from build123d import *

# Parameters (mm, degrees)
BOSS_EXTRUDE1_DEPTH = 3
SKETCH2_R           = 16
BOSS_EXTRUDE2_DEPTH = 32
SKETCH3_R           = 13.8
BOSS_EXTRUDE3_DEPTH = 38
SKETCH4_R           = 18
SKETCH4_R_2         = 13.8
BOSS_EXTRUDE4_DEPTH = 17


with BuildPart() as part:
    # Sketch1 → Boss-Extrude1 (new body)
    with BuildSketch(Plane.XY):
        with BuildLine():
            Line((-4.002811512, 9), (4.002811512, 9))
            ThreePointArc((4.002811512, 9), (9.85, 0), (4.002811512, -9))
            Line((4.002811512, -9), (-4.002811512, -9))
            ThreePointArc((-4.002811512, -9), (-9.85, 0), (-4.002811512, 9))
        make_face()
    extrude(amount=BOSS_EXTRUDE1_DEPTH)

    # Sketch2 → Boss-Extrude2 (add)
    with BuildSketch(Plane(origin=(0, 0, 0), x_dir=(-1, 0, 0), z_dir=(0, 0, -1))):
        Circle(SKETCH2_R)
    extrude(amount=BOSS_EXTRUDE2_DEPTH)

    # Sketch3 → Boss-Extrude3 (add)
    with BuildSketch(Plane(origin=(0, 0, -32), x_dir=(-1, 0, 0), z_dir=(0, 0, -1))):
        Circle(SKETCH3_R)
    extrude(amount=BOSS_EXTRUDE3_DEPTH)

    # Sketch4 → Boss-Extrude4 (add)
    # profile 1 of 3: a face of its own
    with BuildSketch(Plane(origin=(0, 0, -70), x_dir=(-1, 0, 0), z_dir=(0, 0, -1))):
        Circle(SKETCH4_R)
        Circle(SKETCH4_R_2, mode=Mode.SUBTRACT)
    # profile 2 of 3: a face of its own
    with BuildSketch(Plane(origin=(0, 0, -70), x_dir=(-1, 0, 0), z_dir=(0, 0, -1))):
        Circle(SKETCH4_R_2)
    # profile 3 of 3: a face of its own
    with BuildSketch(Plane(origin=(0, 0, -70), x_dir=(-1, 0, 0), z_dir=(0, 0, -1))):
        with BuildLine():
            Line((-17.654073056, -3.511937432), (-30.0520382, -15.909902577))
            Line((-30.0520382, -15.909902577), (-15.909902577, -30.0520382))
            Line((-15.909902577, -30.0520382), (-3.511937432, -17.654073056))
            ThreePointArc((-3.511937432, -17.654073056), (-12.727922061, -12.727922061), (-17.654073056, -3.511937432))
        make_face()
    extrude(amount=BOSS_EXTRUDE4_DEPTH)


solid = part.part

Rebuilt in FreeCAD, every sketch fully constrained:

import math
import FreeCAD as App
import Part
import Sketcher

V = App.Vector
Q = App.Units.Quantity

doc = App.newDocument("Part")
params = doc.addObject("Spreadsheet::Sheet", "Params")
for row, (alias, value) in enumerate([
    ("sketch1_radius", "9.85 mm"),
    ("pad1_length", "3 mm"),
    ("sketch2_diameter", "32 mm"),
    ("pad2_length", "32 mm"),
    ("sketch3_diameter", "27.6 mm"),
    ("pad3_length", "38 mm"),
    ("sketch4_radius", "18 mm"),
    ("sketch4_length", "20 mm"),
    ("pad4_length", "17 mm"),
], start=1):
    params.set(f"A{row}", alias)
    params.set(f"B{row}", "=" + value)
    params.setAlias(f"B{row}", alias)

body = doc.addObject("PartDesign::Body", "Body")

sketch1 = body.newObject("Sketcher::SketchObject", "Sketch")
sketch1.AttachmentSupport = (doc.getObject("XY_Plane"), [""])
sketch1.MapMode = "FlatFace"
sketch1.addGeometry([
    Part.LineSegment(V(4, 9, 0), V(-4, 9, 0)),
    Part.ArcOfCircle(Part.Circle(V(0, 0, 0), V(0, 0, 1), 10), math.radians(114), math.radians(246)),
    Part.LineSegment(V(-4, -9, 0), V(4, -9, 0)),
    Part.ArcOfCircle(Part.Circle(V(0, 0, 0), V(0, 0, 1), 10), math.radians(-66), math.radians(66)),
], False)
sketch1.addConstraint([
    Sketcher.Constraint("Coincident", 0, 2, 1, 1),
    Sketcher.Constraint("Coincident", 1, 2, 2, 1),
    Sketcher.Constraint("Coincident", 2, 2, 3, 1),
    Sketcher.Constraint("Coincident", 3, 2, 0, 1),
    Sketcher.Constraint("Horizontal", 0),
    Sketcher.Constraint("Horizontal", 2),
    Sketcher.Constraint("Coincident", 1, 3, -1, 1),
    Sketcher.Constraint("Coincident", 3, 3, -1, 1),
    Sketcher.Constraint("Equal", 1, 3),
    Sketcher.Constraint("Vertical", 0, 2, 1, 2),
    Sketcher.Constraint("Radius", 1, Q("9.85 mm")),
    Sketcher.Constraint("DistanceY", -1, 1, 0, 2, Q("9 mm")),
])
sketch1.setExpression("Constraints[10]", "Params.sketch1_radius")
pad1 = body.newObject("PartDesign::Pad", "Pad")
pad1.Profile = sketch1
pad1.setExpression("Length", "Params.pad1_length")

sketch2 = body.newObject("Sketcher::SketchObject", "Sketch001")
sketch2.AttachmentSupport = (doc.getObject("XY_Plane"), [""])
sketch2.MapMode = "FlatFace"
sketch2.addGeometry(Part.Circle(V(0, 0, 0), V(0, 0, 1), 16), False)
sketch2.addConstraint([
    Sketcher.Constraint("Coincident", 0, 3, -1, 1),
    Sketcher.Constraint("Diameter", 0, Q("32 mm")),
])
sketch2.setExpression("Constraints[1]", "Params.sketch2_diameter")
pad2 = body.newObject("PartDesign::Pad", "Pad001")
pad2.Profile = sketch2
pad2.setExpression("Length", "Params.pad2_length")
pad2.Reversed = True

sketch3 = body.newObject("Sketcher::SketchObject", "Sketch002")
sketch3.AttachmentSupport = (doc.getObject("XY_Plane"), [""])
sketch3.MapMode = "FlatFace"
sketch3.AttachmentOffset = App.Placement(V(0, 0, -32), App.Rotation())
sketch3.addGeometry(Part.Circle(V(0, 0, 0), V(0, 0, 1), 14), False)
sketch3.addConstraint([
    Sketcher.Constraint("Coincident", 0, 3, -1, 1),
    Sketcher.Constraint("Diameter", 0, Q("27.6 mm")),
])
sketch3.setExpression("Constraints[1]", "Params.sketch3_diameter")
pad3 = body.newObject("PartDesign::Pad", "Pad002")
pad3.Profile = sketch3
pad3.setExpression("Length", "Params.pad3_length")
pad3.Reversed = True

sketch4 = body.newObject("Sketcher::SketchObject", "Sketch003")
sketch4.AttachmentSupport = (doc.getObject("XY_Plane"), [""])
sketch4.MapMode = "FlatFace"
sketch4.AttachmentOffset = App.Placement(V(0, 0, -70), App.Rotation())
sketch4.addGeometry([
    Part.LineSegment(V(18, -4, 0), V(30, -16, 0)),
    Part.LineSegment(V(30, -16, 0), V(16, -30, 0)),
    Part.LineSegment(V(16, -30, 0), V(4, -18, 0)),
    Part.ArcOfCircle(Part.Circle(V(0, 0, 0), V(0, 0, 1), 18), math.radians(-11), math.radians(281)),
], False)
sketch4.addConstraint([
    Sketcher.Constraint("Coincident", 0, 2, 1, 1),
    Sketcher.Constraint("Coincident", 1, 2, 2, 1),
    Sketcher.Constraint("Coincident", 2, 2, 3, 2),
    Sketcher.Constraint("Coincident", 3, 1, 0, 1),
    Sketcher.Constraint("Coincident", 3, 3, -1, 1),
    Sketcher.Constraint("Perpendicular", 0, 1),
    Sketcher.Constraint("Perpendicular", 1, 2),
    Sketcher.Constraint("Equal", 0, 2),
    Sketcher.Constraint("Radius", 3, Q("18 mm")),
    Sketcher.Constraint("Angle", 0, Q("-45 deg")),
    Sketcher.Constraint("Distance", 1, Q("20 mm")),
    Sketcher.Constraint("DistanceX", 2, 2, 0, 2, Q("26.540101 mm")),
])
sketch4.setExpression("Constraints[8]", "Params.sketch4_radius")
sketch4.setExpression("Constraints[10]", "Params.sketch4_length")
pad4 = body.newObject("PartDesign::Pad", "Pad003")
pad4.Profile = sketch4
pad4.setExpression("Length", "Params.pad4_length")
pad4.Reversed = True

doc.recompute()
